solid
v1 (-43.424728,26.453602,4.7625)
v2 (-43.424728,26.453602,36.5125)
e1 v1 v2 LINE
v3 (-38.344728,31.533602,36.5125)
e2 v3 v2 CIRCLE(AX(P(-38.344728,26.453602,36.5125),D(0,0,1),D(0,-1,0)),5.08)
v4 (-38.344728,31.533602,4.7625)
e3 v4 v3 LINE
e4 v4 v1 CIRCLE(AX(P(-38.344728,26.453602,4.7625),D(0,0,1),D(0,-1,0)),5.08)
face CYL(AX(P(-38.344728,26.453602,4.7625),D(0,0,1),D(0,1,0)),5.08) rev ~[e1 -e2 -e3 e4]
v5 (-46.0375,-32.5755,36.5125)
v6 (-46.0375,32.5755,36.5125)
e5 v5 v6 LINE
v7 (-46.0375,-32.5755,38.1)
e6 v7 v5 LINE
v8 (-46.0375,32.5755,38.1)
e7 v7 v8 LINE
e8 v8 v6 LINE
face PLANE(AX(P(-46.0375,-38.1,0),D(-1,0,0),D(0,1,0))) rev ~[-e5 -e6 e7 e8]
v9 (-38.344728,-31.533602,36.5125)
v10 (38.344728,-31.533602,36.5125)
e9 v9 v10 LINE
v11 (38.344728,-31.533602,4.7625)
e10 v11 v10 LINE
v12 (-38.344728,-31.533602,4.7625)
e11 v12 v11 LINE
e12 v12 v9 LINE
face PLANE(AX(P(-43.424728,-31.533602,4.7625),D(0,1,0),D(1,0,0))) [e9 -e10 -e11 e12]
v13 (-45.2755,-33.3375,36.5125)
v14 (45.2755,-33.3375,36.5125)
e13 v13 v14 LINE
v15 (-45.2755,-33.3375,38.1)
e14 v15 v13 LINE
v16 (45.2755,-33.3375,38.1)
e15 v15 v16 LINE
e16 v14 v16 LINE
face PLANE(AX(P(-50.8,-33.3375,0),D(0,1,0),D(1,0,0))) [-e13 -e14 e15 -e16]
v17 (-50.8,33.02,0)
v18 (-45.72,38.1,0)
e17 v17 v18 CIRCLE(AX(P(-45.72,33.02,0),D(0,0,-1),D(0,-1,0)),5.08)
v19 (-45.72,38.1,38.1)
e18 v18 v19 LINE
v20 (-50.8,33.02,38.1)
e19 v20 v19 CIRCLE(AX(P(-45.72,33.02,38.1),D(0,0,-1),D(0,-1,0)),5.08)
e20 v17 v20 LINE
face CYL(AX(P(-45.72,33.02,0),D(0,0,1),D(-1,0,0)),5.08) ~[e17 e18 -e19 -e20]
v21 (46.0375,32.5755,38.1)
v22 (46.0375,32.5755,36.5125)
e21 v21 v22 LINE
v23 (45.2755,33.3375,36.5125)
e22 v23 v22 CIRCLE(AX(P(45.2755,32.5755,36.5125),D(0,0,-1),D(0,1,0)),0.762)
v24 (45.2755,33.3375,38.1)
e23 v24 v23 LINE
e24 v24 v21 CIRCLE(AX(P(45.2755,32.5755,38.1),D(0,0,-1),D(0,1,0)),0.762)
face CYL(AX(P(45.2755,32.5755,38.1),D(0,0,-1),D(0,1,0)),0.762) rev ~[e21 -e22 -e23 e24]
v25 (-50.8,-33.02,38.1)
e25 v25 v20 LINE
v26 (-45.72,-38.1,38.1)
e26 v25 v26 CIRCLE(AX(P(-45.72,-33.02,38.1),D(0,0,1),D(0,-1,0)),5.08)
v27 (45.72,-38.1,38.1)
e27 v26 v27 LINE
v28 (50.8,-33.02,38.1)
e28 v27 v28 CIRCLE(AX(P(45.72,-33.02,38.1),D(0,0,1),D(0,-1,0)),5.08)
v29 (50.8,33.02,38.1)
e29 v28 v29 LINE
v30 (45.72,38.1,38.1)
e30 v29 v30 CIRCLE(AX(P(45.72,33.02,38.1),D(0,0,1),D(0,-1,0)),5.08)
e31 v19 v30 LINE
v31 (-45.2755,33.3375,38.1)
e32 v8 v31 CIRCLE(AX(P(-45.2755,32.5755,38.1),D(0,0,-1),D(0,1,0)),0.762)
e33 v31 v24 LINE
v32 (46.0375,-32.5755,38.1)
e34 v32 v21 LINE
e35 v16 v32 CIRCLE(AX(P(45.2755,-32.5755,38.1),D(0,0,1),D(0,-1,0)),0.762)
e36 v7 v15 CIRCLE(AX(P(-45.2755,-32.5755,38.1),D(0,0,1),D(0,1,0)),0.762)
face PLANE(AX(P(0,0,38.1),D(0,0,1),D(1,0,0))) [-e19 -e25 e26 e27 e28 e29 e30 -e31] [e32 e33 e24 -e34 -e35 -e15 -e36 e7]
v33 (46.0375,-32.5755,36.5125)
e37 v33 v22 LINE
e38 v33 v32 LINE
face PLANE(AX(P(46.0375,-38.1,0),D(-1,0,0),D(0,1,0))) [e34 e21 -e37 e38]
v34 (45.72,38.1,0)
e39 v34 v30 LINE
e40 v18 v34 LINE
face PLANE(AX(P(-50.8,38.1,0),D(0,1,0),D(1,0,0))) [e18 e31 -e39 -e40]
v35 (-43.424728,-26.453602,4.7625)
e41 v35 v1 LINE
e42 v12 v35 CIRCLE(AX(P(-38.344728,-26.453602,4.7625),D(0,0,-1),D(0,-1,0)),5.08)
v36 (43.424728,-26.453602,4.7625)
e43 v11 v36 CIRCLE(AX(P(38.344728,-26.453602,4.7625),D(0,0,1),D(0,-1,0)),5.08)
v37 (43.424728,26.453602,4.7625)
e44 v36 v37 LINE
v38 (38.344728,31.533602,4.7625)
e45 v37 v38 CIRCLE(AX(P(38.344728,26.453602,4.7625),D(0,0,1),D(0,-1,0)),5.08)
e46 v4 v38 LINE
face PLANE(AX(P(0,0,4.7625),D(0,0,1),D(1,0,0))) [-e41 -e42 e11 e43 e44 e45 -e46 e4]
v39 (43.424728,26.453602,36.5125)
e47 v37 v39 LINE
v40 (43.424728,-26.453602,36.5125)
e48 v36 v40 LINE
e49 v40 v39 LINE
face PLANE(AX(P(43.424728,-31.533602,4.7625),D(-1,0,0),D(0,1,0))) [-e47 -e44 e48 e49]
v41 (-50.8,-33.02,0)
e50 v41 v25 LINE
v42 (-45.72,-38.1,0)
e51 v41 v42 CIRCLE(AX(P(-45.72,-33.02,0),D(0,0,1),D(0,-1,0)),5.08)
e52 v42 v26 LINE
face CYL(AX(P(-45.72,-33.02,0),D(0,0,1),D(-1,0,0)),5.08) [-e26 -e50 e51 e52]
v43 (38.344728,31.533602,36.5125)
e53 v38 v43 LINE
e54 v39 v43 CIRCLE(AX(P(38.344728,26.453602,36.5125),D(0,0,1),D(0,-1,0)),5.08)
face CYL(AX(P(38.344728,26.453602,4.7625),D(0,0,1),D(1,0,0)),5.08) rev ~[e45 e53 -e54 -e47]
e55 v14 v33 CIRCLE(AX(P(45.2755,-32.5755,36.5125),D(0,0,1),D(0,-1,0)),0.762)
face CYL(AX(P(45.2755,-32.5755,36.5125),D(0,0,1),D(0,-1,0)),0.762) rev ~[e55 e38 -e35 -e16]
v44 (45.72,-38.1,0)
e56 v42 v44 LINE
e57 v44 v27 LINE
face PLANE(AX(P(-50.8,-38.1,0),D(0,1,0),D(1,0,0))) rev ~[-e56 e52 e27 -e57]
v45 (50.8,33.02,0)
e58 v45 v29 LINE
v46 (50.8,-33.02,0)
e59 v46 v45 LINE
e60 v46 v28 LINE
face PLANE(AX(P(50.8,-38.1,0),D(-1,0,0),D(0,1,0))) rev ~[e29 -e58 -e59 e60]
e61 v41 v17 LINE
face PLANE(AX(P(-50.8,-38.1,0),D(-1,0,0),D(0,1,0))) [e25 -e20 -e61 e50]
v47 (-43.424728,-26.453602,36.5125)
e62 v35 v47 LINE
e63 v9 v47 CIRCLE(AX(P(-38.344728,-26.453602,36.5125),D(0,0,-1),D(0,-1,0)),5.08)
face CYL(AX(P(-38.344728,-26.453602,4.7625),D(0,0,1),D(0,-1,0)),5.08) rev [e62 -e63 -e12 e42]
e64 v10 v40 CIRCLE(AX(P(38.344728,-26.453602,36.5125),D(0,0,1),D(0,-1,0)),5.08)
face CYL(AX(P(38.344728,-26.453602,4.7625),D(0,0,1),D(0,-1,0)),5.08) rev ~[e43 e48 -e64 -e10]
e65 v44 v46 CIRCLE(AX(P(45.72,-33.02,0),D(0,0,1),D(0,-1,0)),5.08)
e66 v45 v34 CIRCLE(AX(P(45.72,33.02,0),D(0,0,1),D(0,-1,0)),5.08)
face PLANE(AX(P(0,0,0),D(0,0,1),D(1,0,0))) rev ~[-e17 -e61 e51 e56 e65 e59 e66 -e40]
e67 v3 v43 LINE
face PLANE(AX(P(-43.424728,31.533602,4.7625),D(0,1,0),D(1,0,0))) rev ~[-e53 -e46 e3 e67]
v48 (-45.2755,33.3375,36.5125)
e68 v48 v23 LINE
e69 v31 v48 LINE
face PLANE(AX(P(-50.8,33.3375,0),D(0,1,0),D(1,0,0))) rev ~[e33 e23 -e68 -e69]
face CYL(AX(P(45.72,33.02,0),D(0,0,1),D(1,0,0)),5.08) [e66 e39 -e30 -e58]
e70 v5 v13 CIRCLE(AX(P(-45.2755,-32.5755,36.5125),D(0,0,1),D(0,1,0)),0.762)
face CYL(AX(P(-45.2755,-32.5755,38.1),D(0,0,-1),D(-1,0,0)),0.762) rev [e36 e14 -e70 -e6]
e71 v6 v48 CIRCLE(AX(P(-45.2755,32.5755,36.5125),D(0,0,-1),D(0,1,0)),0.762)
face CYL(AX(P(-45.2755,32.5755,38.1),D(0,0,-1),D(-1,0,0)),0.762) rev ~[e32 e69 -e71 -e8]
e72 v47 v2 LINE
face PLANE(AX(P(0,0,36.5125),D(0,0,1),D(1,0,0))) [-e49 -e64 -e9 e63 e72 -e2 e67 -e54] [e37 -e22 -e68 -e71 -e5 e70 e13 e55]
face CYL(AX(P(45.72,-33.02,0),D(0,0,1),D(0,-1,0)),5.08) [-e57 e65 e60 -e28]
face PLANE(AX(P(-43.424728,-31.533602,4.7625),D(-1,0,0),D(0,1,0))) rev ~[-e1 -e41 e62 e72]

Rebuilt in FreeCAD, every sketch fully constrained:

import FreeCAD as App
import Part
import Sketcher
Q = App.Units.Quantity


def edges_at(feature, points):
    """Names of the edges that pass closest to the given points."""
    edges = feature.Shape.Edges
    near = lambda p: min(range(len(edges)), key=lambda i: edges[i].distToShape(Part.Vertex(*p))[0])
    return sorted({f"Edge{near(p) + 1}" for p in points})


def faces_at(feature, points):
    """Names of the faces that lie closest to the given points."""
    faces = feature.Shape.Faces
    near = lambda p: min(range(len(faces)), key=lambda i: faces[i].distToShape(Part.Vertex(*p))[0])
    return sorted({f"Face{near(p) + 1}" for p in points})


def add_polygon(sketch, points):
    """Adds a closed chain of lines whose ends are joined by coincident constraints."""
    first, n = sketch.GeometryCount, len(points)
    for a, b in zip(points, points[1:] + points[:1]):
        sketch.addGeometry(Part.LineSegment(App.Vector(*a, 0), App.Vector(*b, 0)), False)
    for i in range(n):
        sketch.addConstraint(Sketcher.Constraint("Coincident", first + i, 2, first + (i + 1) % n, 1))

doc = App.newDocument("Part")
body = doc.addObject("PartDesign::Body", "Body")

sketch1 = body.newObject("Sketcher::SketchObject", "Sketch")
sketch1.AttachmentSupport = (doc.getObject("XY_Plane"), [""])
sketch1.MapMode = "FlatFace"
add_polygon(sketch1, [(-51, 38), (-51, -38), (51, -38), (51, 38)])
sketch1.addConstraint(Sketcher.Constraint("Vertical", 0))
sketch1.addConstraint(Sketcher.Constraint("Horizontal", 1))
sketch1.addConstraint(Sketcher.Constraint("Vertical", 2))
sketch1.addConstraint(Sketcher.Constraint("Horizontal", 3))
sketch1.addConstraint(Sketcher.Constraint("Symmetric", 0, 2, 2, 2, -1, 1))
sketch1.addConstraint(Sketcher.Constraint("DistanceX", 1, 1, 1, 2, Q("4 in")))
sketch1.addConstraint(Sketcher.Constraint("DistanceY", 0, 2, 0, 1, Q("3 in")))
pad1 = body.newObject("PartDesign::Pad", "Pad")
pad1.Profile = sketch1
pad1.Length = Q("1.5 in")
doc.recompute()

thickness = body.newObject("PartDesign::Thickness", "Thickness")
thickness.Base = (pad1, faces_at(pad1, [(0, 0, 38.1)]))
thickness.Value = Q("0.1875 in")
thickness.Reversed = True
thickness.Join = "Arc"

sketch2 = body.newObject("Sketcher::SketchObject", "Sketch001")
sketch2.AttachmentSupport = (doc.getObject("XY_Plane"), [""])
sketch2.MapMode = "FlatFace"
sketch2.AttachmentOffset = App.Placement(App.Vector(0, 0, 0.1875 * 25.4), App.Rotation())
add_polygon(sketch2, [(-46, 33), (-46, -33), (46, -33), (46, 33)])
add_polygon(sketch2, [(43, -32), (-43, -32), (-43, 32), (43, 32)])
sketch2.addConstraint(Sketcher.Constraint("Vertical", 0))
sketch2.addConstraint(Sketcher.Constraint("Horizontal", 1))
sketch2.addConstraint(Sketcher.Constraint("Vertical", 2))
sketch2.addConstraint(Sketcher.Constraint("Horizontal", 3))
sketch2.addConstraint(Sketcher.Constraint("Horizontal", 4))
sketch2.addConstraint(Sketcher.Constraint("Vertical", 5))
sketch2.addConstraint(Sketcher.Constraint("Horizontal", 6))
sketch2.addConstraint(Sketcher.Constraint("Vertical", 7))
sketch2.addConstraint(Sketcher.Constraint("Symmetric", 0, 2, 2, 2, -1, 1))
sketch2.addConstraint(Sketcher.Constraint("Symmetric", 4, 2, 6, 2, -1, 1))
sketch2.addConstraint(Sketcher.Constraint("DistanceX", 1, 1, 1, 2, Q("3.625 in")))
sketch2.addConstraint(Sketcher.Constraint("DistanceY", 0, 2, 0, 1, Q("2.625 in")))
sketch2.addConstraint(Sketcher.Constraint("DistanceY", 4, 2, -1, 1, Q("31.533602 mm")))
sketch2.addConstraint(Sketcher.Constraint("DistanceX", 4, 2, 4, 1, Q("86.849456 mm")))
pad2 = body.newObject("PartDesign::Pad", "Pad001")
pad2.Profile = sketch2
pad2.Length = Q("1.25 in")
doc.recompute()

fillet = body.newObject("PartDesign::Fillet", "Fillet")
fillet.Base = (pad2, edges_at(pad2, [
    (-46.038, 33.337, 37.306),
    (46.038, 33.337, 37.306),
    (46.038, -33.337, 37.306),
    (-46.038, -33.337, 37.306),
]))
fillet.Radius = Q("0.03 in")
doc.recompute()

fillet2 = body.newObject("PartDesign::Fillet", "Fillet001")
fillet2.Base = (fillet, edges_at(fillet, [
    (43.425, 31.534, 20.637),
    (43.425, -31.534, 20.637),
    (-43.425, -31.534, 20.637),
    (-43.425, 31.534, 20.637),
]))
fillet2.Radius = Q("0.2 in")
doc.recompute()

fillet3 = body.newObject("PartDesign::Fillet", "Fillet002")
fillet3.Base = (fillet2, edges_at(fillet2, [
    (50.8, 38.1, 19.05),
    (50.8, -38.1, 19.05),
    (-50.8, 38.1, 19.05),
    (-50.8, -38.1, 19.05),
]))
fillet3.Radius = Q("0.2 in")

doc.recompute()
